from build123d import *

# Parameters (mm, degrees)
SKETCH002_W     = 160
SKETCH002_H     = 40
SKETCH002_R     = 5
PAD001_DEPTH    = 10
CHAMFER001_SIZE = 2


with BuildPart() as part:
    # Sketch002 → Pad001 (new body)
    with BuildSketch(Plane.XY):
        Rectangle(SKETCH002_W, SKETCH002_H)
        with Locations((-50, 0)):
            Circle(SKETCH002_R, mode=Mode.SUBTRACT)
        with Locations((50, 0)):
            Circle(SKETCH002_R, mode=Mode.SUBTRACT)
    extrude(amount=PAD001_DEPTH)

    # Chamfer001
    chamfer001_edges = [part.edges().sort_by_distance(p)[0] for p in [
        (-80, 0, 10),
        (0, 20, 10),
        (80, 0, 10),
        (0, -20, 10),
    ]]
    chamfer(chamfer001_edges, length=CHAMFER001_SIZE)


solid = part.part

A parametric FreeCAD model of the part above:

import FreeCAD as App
import Part
import Sketcher

V = App.Vector
Q = App.Units.Quantity


def edges_at(feature, points):
    """Names of the edges that pass closest to the given points."""
    edges = feature.Shape.Edges
    near = lambda p: min(range(len(edges)), key=lambda i: edges[i].distToShape(Part.Vertex(*p))[0])
    return sorted({f"Edge{near(p) + 1}" for p in points})

doc = App.newDocument("Part")
body = doc.addObject("PartDesign::Body", "Body")

# Sketch on XY plane
sketch1 = body.newObject("Sketcher::SketchObject", "Sketch")
sketch1.AttachmentSupport = (doc.getObject("XY_Plane"), [""])
sketch1.MapMode = "FlatFace"
sketch1.addGeometry([
    Part.LineSegment(V(-80, 20, 0), V(-80, -20, 0)),  # 0
    Part.LineSegment(V(-80, -20, 0), V(80, -20, 0)),  # 1
    Part.LineSegment(V(80, -20, 0), V(80, 20, 0)),  # 2
    Part.LineSegment(V(80, 20, 0), V(-80, 20, 0)),  # 3
    Part.Circle(V(-50, 0, 0), V(0, 0, 1), 5),  # 4
    Part.Circle(V(50, 0, 0), V(0, 0, 1), 5),  # 5
], False)
sketch1.addConstraint([
    Sketcher.Constraint("Coincident", 0, 2, 1, 1),
    Sketcher.Constraint("Coincident", 1, 2, 2, 1),
    Sketcher.Constraint("Coincident", 2, 2, 3, 1),
    Sketcher.Constraint("Coincident", 3, 2, 0, 1),
    Sketcher.Constraint("Vertical", 0),
    Sketcher.Constraint("Horizontal", 1),
    Sketcher.Constraint("Vertical", 2),
    Sketcher.Constraint("Horizontal", 3),
    Sketcher.Constraint("Equal", 4, 5),
    Sketcher.Constraint("Symmetric", 4, 3, 5, 3, -1, 1),
    Sketcher.Constraint("Symmetric", 0, 2, 2, 2, -1, 1),
    Sketcher.Constraint("PointOnObject", 4, 3, -1),
    Sketcher.Constraint("Diameter", 4, Q("10 mm")),
    Sketcher.Constraint("DistanceX", 1, 1, 1, 2, Q("160 mm")),
    Sketcher.Constraint("DistanceY", 0, 2, 0, 1, Q("40 mm")),
    Sketcher.Constraint("DistanceX", 4, 3, -1, 1, Q("50 mm")),
])
pad1 = body.newObject("PartDesign::Pad", "Pad")
pad1.Profile = sketch1
pad1.Length = 10
doc.recompute()

chamfer = body.newObject("PartDesign::Chamfer", "Chamfer")
chamfer.Base = (pad1, edges_at(pad1, [
    (-80, 0, 10),
    (0, 20, 10),
    (80, 0, 10),
    (0, -20, 10),
]))
chamfer.Size = 2

doc.recompute()
